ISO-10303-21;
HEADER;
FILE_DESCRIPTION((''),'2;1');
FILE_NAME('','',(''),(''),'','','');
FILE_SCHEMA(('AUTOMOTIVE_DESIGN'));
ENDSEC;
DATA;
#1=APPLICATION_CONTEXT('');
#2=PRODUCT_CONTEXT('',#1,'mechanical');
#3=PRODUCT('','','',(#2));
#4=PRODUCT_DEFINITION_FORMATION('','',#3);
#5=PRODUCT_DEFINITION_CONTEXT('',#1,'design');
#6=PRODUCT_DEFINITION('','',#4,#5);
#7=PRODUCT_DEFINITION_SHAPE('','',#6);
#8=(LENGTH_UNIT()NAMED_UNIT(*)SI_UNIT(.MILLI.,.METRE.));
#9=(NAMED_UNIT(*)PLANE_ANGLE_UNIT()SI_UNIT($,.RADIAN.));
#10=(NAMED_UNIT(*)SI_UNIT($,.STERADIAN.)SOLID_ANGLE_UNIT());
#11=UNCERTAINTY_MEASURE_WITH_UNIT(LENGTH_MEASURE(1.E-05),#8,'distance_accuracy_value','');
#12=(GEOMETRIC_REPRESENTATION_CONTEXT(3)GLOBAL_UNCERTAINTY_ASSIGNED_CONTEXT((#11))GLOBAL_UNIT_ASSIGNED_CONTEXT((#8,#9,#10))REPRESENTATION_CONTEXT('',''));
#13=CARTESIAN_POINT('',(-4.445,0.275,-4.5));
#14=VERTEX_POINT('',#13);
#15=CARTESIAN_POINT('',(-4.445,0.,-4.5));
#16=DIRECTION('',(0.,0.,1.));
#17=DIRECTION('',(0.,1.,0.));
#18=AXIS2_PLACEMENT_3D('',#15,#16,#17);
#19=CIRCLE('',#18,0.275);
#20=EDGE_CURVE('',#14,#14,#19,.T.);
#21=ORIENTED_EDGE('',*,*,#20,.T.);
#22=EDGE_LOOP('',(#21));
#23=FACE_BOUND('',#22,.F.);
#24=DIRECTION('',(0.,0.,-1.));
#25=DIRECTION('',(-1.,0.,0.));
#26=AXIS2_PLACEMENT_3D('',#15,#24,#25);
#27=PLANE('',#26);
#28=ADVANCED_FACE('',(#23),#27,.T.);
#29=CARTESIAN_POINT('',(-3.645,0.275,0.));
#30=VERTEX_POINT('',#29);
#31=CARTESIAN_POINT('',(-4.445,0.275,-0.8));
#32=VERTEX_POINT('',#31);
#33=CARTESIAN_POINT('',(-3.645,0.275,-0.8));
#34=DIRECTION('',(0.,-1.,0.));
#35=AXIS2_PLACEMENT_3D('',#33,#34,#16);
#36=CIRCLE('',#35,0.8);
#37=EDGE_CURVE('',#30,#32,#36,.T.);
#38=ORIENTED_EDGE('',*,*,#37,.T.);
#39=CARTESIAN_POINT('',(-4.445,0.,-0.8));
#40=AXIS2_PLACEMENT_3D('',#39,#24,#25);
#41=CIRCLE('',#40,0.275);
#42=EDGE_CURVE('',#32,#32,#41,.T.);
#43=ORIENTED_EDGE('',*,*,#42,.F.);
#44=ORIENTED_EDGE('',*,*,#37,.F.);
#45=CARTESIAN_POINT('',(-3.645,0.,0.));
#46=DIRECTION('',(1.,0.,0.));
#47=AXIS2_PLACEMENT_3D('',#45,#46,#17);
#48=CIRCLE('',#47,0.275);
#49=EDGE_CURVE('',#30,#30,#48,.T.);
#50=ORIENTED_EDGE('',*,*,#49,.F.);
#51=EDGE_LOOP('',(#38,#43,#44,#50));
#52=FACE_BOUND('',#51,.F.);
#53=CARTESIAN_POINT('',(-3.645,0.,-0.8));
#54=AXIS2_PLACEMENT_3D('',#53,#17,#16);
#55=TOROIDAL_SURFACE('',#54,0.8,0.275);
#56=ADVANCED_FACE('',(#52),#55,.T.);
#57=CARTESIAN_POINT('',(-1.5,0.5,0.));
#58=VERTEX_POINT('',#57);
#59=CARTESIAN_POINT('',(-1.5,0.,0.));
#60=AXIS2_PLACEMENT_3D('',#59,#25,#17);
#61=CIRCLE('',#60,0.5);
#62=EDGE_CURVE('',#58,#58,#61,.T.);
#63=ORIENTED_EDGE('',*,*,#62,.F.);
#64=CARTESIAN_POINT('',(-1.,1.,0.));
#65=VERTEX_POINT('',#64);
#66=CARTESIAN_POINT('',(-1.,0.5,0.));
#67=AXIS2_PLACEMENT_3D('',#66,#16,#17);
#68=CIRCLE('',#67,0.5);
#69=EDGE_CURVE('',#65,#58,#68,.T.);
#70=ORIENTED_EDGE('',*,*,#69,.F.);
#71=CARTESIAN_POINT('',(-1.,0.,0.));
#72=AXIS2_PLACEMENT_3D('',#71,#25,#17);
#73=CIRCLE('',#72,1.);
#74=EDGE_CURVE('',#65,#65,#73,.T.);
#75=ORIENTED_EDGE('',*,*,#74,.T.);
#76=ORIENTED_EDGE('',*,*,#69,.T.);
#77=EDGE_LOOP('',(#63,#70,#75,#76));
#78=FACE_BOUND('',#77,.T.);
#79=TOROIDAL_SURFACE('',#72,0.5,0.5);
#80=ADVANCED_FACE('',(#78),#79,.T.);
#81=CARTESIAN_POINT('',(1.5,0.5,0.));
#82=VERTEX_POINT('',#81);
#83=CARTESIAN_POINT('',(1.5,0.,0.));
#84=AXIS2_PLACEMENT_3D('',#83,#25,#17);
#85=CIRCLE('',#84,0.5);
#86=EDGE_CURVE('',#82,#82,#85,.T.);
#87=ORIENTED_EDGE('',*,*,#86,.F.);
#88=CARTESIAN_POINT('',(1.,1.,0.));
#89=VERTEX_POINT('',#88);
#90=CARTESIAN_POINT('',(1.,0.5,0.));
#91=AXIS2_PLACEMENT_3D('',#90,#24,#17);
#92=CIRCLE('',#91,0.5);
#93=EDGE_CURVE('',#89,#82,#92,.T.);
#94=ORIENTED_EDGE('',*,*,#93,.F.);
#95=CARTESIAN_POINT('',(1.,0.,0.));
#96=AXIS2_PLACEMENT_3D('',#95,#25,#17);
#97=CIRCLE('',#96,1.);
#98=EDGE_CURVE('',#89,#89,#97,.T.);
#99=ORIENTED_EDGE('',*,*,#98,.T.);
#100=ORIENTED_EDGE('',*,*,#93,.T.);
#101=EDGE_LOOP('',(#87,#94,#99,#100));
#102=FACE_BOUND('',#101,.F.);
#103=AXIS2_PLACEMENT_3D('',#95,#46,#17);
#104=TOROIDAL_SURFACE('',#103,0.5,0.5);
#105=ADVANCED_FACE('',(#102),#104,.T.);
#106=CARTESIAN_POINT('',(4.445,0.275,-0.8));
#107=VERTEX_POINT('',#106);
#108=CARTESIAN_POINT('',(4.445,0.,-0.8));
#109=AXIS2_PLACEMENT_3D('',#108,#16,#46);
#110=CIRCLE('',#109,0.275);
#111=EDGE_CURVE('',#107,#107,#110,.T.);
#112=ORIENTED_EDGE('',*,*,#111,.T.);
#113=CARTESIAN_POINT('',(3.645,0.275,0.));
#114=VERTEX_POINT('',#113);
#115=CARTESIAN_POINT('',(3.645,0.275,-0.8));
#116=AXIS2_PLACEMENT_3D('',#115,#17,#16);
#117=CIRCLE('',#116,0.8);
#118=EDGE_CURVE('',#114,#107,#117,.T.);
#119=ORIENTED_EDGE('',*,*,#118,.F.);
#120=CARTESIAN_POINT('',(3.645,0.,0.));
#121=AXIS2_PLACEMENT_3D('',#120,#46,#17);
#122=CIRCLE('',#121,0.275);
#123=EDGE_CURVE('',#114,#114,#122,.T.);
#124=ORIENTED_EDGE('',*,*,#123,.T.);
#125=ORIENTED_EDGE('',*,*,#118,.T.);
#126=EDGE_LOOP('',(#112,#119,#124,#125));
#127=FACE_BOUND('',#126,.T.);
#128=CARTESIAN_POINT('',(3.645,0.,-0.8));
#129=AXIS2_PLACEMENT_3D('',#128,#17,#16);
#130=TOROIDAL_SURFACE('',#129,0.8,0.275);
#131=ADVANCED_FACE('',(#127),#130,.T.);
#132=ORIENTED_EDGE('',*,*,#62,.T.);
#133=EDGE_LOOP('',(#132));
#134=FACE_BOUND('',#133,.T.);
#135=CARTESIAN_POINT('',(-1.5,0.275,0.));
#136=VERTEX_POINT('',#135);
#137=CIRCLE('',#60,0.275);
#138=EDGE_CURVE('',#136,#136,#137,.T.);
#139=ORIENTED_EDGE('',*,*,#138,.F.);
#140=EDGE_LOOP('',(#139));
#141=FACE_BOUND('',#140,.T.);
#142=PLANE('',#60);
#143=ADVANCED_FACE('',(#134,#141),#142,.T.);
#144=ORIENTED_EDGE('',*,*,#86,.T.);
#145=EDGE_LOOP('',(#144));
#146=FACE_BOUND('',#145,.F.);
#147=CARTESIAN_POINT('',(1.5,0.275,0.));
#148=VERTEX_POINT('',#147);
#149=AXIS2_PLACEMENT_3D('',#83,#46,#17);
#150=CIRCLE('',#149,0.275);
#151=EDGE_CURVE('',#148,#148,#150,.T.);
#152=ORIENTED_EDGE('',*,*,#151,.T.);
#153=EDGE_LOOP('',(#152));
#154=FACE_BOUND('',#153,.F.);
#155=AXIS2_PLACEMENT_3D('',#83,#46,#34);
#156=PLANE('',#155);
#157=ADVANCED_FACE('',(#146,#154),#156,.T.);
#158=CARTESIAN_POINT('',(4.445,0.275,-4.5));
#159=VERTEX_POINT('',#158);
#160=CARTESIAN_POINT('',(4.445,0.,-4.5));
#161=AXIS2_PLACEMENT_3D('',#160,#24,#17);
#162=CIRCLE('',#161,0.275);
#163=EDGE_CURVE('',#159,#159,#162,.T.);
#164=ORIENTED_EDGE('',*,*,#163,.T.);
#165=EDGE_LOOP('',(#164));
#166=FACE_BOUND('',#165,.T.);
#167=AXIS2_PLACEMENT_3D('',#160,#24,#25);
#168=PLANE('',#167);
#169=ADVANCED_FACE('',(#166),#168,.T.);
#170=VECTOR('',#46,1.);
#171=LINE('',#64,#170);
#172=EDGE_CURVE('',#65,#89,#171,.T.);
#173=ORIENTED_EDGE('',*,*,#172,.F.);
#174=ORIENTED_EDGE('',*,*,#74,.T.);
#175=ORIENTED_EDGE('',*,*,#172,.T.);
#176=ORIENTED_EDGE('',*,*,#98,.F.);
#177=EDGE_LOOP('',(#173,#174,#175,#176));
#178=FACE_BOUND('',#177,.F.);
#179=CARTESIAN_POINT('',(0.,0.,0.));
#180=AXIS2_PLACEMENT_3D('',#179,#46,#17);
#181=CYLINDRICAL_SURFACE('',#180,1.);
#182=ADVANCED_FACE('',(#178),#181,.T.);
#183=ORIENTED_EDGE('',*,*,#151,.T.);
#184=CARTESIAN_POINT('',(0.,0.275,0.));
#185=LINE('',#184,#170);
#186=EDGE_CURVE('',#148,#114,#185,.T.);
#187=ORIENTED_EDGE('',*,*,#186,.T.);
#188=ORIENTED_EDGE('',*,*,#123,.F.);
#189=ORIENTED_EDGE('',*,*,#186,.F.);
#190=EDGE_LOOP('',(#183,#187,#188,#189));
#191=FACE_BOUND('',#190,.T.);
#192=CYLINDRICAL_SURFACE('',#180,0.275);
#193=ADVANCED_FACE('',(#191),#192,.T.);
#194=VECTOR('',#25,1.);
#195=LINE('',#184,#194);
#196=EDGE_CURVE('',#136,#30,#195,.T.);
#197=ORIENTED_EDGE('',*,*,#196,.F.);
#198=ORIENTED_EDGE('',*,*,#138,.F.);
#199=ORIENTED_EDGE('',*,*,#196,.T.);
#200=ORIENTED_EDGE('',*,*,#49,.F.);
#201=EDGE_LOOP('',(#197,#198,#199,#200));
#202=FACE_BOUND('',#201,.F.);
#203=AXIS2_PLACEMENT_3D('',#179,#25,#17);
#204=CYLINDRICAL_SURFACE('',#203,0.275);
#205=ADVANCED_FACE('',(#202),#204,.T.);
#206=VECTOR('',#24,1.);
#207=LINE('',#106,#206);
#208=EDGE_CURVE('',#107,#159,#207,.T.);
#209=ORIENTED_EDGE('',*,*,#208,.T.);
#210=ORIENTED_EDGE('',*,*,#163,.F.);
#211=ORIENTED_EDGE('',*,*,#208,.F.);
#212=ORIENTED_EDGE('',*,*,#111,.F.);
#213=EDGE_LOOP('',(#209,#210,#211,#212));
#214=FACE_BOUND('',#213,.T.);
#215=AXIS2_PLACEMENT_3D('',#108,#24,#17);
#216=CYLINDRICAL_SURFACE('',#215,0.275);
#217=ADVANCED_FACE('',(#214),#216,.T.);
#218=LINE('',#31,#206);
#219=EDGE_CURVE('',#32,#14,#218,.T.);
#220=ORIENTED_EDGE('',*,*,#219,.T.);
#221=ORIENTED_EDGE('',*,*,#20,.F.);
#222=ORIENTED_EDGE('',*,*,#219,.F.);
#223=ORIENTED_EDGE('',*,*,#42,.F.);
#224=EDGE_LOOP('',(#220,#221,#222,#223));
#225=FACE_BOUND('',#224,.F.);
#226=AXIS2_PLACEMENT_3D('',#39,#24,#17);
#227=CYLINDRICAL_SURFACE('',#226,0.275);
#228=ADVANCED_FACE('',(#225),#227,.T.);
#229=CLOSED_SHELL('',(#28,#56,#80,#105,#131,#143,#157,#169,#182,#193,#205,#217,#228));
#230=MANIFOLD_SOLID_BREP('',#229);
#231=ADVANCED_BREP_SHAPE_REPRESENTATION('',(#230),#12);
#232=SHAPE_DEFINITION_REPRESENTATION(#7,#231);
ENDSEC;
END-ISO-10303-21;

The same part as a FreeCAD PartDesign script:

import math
import FreeCAD as App
import Part
import Sketcher

V = App.Vector
Q = App.Units.Quantity

doc = App.newDocument("Part")
body = doc.addObject("PartDesign::Body", "Body")

sketch1 = doc.addObject("Sketcher::SketchObject", "Sketch")
body.addObject(sketch1)
sketch1.AttachmentSupport = (doc.XY_Plane, [""])
sketch1.MapMode = "FlatFace"
sketch1.addGeometry(Part.LineSegment(V(0, 0, 0), V(0, 1, 0)), False)
sketch1.addGeometry(Part.LineSegment(V(0, 1, 0), V(-1, 1, 0)), False)
sketch1.addGeometry(Part.ArcOfCircle(Part.Circle(V(-1, 0.5, 0), V(0, 0, 1), 0.5), math.radians(90), math.radians(180)), False)
sketch1.addGeometry(Part.LineSegment(V(-1.5, 0.5, 0), V(-1.5, 0, 0)), False)
sketch1.addGeometry(Part.LineSegment(V(-1.5, 0, 0), V(0, 0, 0)), False)
sketch1.addConstraint(Sketcher.Constraint("Coincident", 0, 2, 1, 1))
sketch1.addConstraint(Sketcher.Constraint("Tangent", 1, 2, 2, 1))
sketch1.addConstraint(Sketcher.Constraint("Tangent", 2, 2, 3, 1))
sketch1.addConstraint(Sketcher.Constraint("Coincident", 3, 2, 4, 1))
sketch1.addConstraint(Sketcher.Constraint("Coincident", 4, 2, 0, 1))
sketch1.addConstraint(Sketcher.Constraint("Vertical", 0))
sketch1.addConstraint(Sketcher.Constraint("Horizontal", 1))
sketch1.addConstraint(Sketcher.Constraint("Vertical", 3))
sketch1.addConstraint(Sketcher.Constraint("Horizontal", 4))
sketch1.addConstraint(Sketcher.Constraint("Coincident", 4, 2, -1, 1))
sketch1.addConstraint(Sketcher.Constraint("Equal", 1, 0))
sketch1.addConstraint(Sketcher.Constraint("Radius", 2, Q("0.5 mm")))
sketch1.addConstraint(Sketcher.Constraint("DistanceX", 1, 2, 1, 1, Q("1 mm")))
revolution = doc.addObject("PartDesign::Revolution", "Revolution")
body.addObject(revolution)
revolution.Profile = sketch1
revolution.ReferenceAxis = (sketch1, ["H_Axis"])
revolution.Angle = 360
body2 = doc.addObject("PartDesign::Body", "Body001")
doc.recompute()

body2.BaseFeature = body
doc.recompute()

mirroring = doc.addObject("Part::Mirroring", "Mirroring")
mirroring.Source = body
mirroring.Base = V(0, 0, 0)
mirroring.Normal = V(1, 0, 0)
body3 = doc.addObject("PartDesign::Body", "Body002")
body3.BaseFeature = mirroring
boolean = doc.addObject("PartDesign::Boolean", "Boolean")
body2.addObject(boolean)
boolean.Type = "Fuse"
boolean.addObjects([body3])
doc.recompute()
body4 = doc.addObject("PartDesign::Body", "Body003")

sketch2 = doc.addObject("Sketcher::SketchObject", "Sketch001")
body4.addObject(sketch2)
sketch2.AttachmentSupport = (doc.getObject("YZ_Plane003"), [""])
sketch2.MapMode = "FlatFace"
sketch2.addGeometry(Part.Circle(V(0, 0, 0), V(0, 0, 1), 0.28), False)
sketch2.addConstraint(Sketcher.Constraint("Coincident", 0, 3, -1, 1))
sketch2.addConstraint(Sketcher.Constraint("Diameter", 0, Q("0.55 mm")))

sketch3 = doc.addObject("Sketcher::SketchObject", "Sketch002")
body4.addObject(sketch3)
sketch3.AttachmentSupport = (doc.getObject("XZ_Plane003"), [""])
sketch3.MapMode = "FlatFace"
sketch3.addGeometry(Part.LineSegment(V(0, 0, 0), V(3.6, 0, 0)), False)
sketch3.addGeometry(Part.ArcOfCircle(Part.Circle(V(3.6, -0.8, 0), V(0, 0, 1), 0.8), math.radians(0), math.radians(90)), False)
sketch3.addGeometry(Part.LineSegment(V(4.4, -0.8, 0), V(4.4, -4.5, 0)), False)
sketch3.addConstraint(Sketcher.Constraint("Tangent", 0, 2, 1, 2))
sketch3.addConstraint(Sketcher.Constraint("Tangent", 1, 1, 2, 1))
sketch3.addConstraint(Sketcher.Constraint("Horizontal", 0))
sketch3.addConstraint(Sketcher.Constraint("Vertical", 2))
sketch3.addConstraint(Sketcher.Constraint("Coincident", 0, 1, -1, 1))
sketch3.addConstraint(Sketcher.Constraint("Radius", 1, Q("0.8 mm")))
sketch3.addConstraint(Sketcher.Constraint("DistanceY", 2, 2, 2, 1, Q("3.7 mm")))
sketch3.addConstraint(Sketcher.Constraint("DistanceX", 0, 1, 0, 2, Q("3.645 mm")))
doc.recompute()

additivepipe = doc.addObject("PartDesign::AdditivePipe", "AdditivePipe")
body4.addObject(additivepipe)
additivepipe.Profile = sketch2
additivepipe.Spine = (sketch3, ["Edge1", "Edge2", "Edge3"])
doc.recompute()

body5 = doc.addObject("PartDesign::Body", "Body004")
body5.BaseFeature = body4
boolean2 = doc.addObject("PartDesign::Boolean", "Boolean001")
body2.addObject(boolean2)
boolean2.Type = "Fuse"
boolean2.addObjects([body5])
doc.recompute()

mirroring2 = doc.addObject("Part::Mirroring", "Mirroring001")
mirroring2.Source = body4
mirroring2.Base = V(0, 0, 0)
mirroring2.Normal = V(1, 0, 0)
body6 = doc.addObject("PartDesign::Body", "Body005")
body6.BaseFeature = mirroring2
boolean3 = doc.addObject("PartDesign::Boolean", "Boolean002")
body2.addObject(boolean3)
boolean3.Type = "Fuse"
boolean3.addObjects([body6])
doc.recompute()
mirroring.Visibility = False
mirroring2.Visibility = False

doc.recompute()
